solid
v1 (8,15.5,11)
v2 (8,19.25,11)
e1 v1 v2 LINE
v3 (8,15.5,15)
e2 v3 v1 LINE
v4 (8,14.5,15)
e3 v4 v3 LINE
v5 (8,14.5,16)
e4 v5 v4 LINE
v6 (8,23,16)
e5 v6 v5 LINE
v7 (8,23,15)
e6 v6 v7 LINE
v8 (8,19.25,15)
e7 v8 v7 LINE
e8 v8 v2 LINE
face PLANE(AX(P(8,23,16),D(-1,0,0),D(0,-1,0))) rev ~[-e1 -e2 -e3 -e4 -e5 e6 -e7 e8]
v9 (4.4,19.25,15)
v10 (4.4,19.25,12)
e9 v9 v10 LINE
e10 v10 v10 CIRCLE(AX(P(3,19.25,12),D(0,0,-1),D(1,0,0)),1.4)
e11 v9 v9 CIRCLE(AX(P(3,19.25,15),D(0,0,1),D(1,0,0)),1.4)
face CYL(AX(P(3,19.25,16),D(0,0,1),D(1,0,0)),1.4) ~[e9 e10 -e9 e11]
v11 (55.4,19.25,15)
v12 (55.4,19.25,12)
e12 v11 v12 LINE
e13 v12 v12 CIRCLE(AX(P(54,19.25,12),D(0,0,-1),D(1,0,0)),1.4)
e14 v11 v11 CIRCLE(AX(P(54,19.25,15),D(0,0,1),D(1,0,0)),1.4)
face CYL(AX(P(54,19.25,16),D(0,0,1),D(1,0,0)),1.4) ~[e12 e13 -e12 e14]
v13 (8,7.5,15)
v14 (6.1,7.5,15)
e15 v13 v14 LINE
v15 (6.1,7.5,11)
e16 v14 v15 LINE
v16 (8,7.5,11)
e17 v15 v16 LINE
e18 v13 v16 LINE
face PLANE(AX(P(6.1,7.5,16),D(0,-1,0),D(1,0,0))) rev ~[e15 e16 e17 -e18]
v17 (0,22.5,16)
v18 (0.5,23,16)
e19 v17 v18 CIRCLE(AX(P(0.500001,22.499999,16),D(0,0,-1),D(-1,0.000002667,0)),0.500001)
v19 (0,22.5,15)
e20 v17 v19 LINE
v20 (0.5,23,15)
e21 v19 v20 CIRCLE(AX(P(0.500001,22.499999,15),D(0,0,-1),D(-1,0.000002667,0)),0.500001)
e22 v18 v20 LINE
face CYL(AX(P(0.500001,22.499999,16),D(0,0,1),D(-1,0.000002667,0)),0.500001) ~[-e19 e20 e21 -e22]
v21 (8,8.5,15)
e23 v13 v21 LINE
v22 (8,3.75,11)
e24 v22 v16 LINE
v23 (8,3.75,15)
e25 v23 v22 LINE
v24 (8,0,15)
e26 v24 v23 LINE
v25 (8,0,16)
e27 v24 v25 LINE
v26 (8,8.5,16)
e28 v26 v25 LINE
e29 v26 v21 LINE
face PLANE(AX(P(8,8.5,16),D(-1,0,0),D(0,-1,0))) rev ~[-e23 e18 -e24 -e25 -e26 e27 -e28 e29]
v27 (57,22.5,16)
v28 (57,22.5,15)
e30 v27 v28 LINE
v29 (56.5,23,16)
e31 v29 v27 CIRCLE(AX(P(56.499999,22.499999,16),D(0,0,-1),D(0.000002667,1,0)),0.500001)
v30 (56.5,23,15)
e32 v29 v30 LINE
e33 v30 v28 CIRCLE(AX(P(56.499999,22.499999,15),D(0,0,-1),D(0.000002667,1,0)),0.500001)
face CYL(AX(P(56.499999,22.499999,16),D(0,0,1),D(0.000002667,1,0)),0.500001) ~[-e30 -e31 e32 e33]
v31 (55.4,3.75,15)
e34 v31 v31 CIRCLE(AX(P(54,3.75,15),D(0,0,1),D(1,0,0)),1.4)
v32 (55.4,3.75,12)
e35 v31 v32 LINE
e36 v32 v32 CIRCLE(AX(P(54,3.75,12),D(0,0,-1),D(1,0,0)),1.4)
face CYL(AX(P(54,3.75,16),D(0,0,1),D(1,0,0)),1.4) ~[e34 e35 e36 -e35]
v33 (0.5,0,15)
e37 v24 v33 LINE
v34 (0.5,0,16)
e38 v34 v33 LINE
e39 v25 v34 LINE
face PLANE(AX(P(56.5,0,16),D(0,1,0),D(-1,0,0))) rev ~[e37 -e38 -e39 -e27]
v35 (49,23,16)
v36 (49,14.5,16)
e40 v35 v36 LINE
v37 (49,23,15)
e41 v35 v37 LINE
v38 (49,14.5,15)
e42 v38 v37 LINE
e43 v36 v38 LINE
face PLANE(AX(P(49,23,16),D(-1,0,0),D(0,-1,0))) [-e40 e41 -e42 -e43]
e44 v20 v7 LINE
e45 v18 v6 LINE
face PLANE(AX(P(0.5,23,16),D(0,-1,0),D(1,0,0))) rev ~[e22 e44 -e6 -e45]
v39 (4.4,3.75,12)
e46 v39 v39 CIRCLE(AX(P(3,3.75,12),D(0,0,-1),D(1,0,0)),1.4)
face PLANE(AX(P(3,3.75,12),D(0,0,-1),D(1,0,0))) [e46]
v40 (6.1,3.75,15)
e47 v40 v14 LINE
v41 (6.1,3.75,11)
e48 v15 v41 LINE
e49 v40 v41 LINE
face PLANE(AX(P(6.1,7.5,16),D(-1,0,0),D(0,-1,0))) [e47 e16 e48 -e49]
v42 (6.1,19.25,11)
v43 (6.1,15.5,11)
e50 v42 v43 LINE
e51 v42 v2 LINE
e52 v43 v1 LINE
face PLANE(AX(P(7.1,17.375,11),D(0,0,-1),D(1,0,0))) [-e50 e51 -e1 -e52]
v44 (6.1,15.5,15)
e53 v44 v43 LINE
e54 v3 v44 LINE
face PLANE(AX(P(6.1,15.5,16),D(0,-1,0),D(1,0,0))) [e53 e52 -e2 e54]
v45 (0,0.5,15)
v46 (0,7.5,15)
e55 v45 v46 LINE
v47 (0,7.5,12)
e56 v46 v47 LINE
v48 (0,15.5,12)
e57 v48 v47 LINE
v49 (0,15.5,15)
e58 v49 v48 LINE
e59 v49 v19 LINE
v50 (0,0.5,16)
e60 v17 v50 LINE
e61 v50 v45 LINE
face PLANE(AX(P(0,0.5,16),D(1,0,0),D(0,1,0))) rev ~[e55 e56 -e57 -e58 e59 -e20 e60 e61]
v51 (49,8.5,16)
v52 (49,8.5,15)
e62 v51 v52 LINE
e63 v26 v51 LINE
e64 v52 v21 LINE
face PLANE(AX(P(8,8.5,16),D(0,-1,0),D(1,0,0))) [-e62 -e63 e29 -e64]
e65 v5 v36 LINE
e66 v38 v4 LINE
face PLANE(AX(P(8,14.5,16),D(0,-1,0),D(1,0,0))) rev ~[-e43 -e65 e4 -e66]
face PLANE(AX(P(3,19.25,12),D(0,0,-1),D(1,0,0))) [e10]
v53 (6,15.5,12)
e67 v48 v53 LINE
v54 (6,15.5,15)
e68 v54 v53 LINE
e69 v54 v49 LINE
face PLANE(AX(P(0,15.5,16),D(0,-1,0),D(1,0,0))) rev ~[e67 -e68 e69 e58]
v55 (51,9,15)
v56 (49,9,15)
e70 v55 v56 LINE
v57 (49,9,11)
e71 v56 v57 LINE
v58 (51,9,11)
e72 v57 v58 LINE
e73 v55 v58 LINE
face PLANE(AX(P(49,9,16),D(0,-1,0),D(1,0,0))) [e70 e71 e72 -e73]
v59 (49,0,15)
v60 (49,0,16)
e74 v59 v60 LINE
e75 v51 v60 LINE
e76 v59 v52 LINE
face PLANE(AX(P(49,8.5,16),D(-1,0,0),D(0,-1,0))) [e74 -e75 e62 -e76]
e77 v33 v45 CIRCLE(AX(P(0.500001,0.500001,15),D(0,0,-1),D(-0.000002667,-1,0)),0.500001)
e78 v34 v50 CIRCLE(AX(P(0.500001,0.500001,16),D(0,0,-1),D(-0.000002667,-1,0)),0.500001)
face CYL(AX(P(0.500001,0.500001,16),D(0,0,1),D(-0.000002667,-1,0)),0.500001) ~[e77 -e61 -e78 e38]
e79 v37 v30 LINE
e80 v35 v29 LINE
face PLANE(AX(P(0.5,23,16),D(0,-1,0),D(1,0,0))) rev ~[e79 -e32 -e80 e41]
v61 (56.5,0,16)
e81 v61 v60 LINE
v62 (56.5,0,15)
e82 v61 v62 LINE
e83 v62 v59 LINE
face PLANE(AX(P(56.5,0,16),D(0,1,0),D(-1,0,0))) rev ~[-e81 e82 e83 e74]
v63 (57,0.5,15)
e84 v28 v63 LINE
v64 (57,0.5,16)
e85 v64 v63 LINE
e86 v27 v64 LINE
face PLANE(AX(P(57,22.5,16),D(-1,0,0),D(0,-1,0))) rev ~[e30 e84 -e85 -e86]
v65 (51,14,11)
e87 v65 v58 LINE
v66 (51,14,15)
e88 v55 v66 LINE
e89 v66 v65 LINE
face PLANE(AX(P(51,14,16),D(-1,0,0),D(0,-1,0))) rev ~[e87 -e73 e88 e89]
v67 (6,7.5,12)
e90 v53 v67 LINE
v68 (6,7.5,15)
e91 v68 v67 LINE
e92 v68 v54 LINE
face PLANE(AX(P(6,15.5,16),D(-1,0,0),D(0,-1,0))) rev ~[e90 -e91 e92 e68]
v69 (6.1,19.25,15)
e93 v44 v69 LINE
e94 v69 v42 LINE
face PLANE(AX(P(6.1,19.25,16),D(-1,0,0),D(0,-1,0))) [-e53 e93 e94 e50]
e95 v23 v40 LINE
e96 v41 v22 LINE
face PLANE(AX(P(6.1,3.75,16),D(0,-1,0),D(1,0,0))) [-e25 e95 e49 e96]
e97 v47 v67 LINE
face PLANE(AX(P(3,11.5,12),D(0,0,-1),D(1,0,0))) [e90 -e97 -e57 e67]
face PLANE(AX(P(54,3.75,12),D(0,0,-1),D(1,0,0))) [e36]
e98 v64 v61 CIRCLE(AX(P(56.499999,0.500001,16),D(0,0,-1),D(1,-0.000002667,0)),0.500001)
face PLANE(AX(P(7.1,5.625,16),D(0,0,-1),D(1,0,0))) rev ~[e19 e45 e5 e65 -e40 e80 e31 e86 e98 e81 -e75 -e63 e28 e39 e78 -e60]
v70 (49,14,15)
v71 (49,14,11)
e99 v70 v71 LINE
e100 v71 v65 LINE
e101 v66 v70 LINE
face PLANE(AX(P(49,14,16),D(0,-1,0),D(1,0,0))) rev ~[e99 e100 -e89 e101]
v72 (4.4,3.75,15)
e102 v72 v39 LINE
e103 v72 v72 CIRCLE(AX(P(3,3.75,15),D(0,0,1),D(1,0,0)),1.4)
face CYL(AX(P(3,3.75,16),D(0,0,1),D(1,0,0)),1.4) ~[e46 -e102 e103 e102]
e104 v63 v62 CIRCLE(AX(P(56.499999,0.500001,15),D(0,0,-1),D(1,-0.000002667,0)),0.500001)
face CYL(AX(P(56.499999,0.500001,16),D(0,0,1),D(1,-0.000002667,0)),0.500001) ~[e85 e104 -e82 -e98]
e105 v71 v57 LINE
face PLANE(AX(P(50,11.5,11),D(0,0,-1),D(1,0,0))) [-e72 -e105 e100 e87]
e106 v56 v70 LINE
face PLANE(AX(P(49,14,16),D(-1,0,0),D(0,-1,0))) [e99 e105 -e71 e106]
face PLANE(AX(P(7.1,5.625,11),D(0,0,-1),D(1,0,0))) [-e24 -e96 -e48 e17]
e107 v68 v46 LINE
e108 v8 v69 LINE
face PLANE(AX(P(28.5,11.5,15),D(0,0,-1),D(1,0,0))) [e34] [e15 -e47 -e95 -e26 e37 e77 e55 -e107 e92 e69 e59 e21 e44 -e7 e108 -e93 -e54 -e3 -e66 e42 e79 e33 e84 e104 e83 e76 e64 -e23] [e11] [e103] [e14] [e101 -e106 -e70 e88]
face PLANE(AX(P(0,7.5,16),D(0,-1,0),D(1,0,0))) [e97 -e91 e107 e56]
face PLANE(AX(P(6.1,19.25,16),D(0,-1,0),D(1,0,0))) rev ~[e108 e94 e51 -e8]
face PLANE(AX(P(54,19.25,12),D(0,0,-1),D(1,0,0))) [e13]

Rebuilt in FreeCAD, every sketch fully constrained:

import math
import FreeCAD as App
import Part
import Sketcher

doc = App.newDocument("Part")
params = doc.addObject("Spreadsheet::Sheet", "Params")
for row, (alias, value) in enumerate([
    ("sketch1_radius", "0.500001 mm"),
    ("sketch1_width", "56 mm"),
    ("sketch1_height", "22 mm"),
    ("pad1_length", "1 mm"),
    ("sketch2_diameter", "2.8 mm"),
    ("sketch2_width", "6 mm"),
    ("sketch2_height", "8 mm"),
    ("pad2_length", "4 mm"),
    ("sketch3_width", "2 mm"),
    ("sketch3_height", "5 mm"),
    ("sketch3_height2", "3.75 mm"),
    ("pad3_length", "5 mm"),
    ("sketch4_width", "41 mm"),
    ("sketch4_height", "8.5 mm"),
], start=1):
    params.set(f"A{row}", alias)
    params.set(f"B{row}", "=" + value)
    params.setAlias(f"B{row}", alias)

body = doc.addObject("PartDesign::Body", "Body")

# Sketch on XY plane
sketch1 = doc.addObject("Sketcher::SketchObject", "Sketch")
body.addObject(sketch1)
sketch1.AttachmentSupport = (doc.XY_Plane, [""])
sketch1.MapMode = "FlatFace"
sketch1.addGeometry(Part.LineSegment(App.Vector(0.5, 0, 0), App.Vector(56.5, 0, 0)), False)
sketch1.addGeometry(Part.ArcOfCircle(Part.Circle(App.Vector(56.5, 0.5, 0), App.Vector(0, 0, 1), 0.5), math.radians(-90), math.radians(0)), False)
sketch1.addGeometry(Part.LineSegment(App.Vector(57, 0.5, 0), App.Vector(57, 22.5, 0)), False)
sketch1.addGeometry(Part.ArcOfCircle(Part.Circle(App.Vector(56.5, 22.5, 0), App.Vector(0, 0, 1), 0.5), math.radians(0), math.radians(90)), False)
sketch1.addGeometry(Part.LineSegment(App.Vector(56.5, 23, 0), App.Vector(0.5, 23, 0)), False)
sketch1.addGeometry(Part.ArcOfCircle(Part.Circle(App.Vector(0.5, 22.5, 0), App.Vector(0, 0, 1), 0.5), math.radians(90), math.radians(180)), False)
sketch1.addGeometry(Part.LineSegment(App.Vector(0, 22.5, 0), App.Vector(0, 0.5, 0)), False)
sketch1.addGeometry(Part.ArcOfCircle(Part.Circle(App.Vector(0.5, 0.5, 0), App.Vector(0, 0, 1), 0.5), math.radians(-180), math.radians(-90)), False)
sketch1.addConstraint(Sketcher.Constraint("Coincident", 0, 2, 1, 1))
sketch1.addConstraint(Sketcher.Constraint("Coincident", 1, 2, 2, 1))
sketch1.addConstraint(Sketcher.Constraint("Coincident", 2, 2, 3, 1))
sketch1.addConstraint(Sketcher.Constraint("Coincident", 3, 2, 4, 1))
sketch1.addConstraint(Sketcher.Constraint("Coincident", 4, 2, 5, 1))
sketch1.addConstraint(Sketcher.Constraint("Coincident", 5, 2, 6, 1))
sketch1.addConstraint(Sketcher.Constraint("Coincident", 6, 2, 7, 1))
sketch1.addConstraint(Sketcher.Constraint("Coincident", 7, 2, 0, 1))
sketch1.addConstraint(Sketcher.Constraint("Horizontal", 0))
sketch1.addConstraint(Sketcher.Constraint("Vertical", 2))
sketch1.addConstraint(Sketcher.Constraint("Horizontal", 4))
sketch1.addConstraint(Sketcher.Constraint("Vertical", 6))
sketch1.addConstraint(Sketcher.Constraint("Equal", 1, 3))
sketch1.addConstraint(Sketcher.Constraint("Equal", 3, 5))
sketch1.addConstraint(Sketcher.Constraint("Equal", 5, 7))
sketch1.addConstraint(Sketcher.Constraint("PointOnObject", 0, 2, -1))
sketch1.addConstraint(Sketcher.Constraint("PointOnObject", 5, 2, -2))
sketch1.addConstraint(Sketcher.Constraint("Horizontal", 7, 3, 1, 2))
sketch1.addConstraint(Sketcher.Constraint("Horizontal", 5, 3, 2, 2))
sketch1.addConstraint(Sketcher.Constraint("Horizontal", 2, 2, 5, 2))
sketch1.addConstraint(Sketcher.Constraint("Horizontal", 1, 2, 6, 2))
sketch1.addConstraint(Sketcher.Constraint("Vertical", 3, 3, 0, 2))
sketch1.addConstraint(Sketcher.Constraint("Vertical", 0, 2, 3, 2))
sketch1.addConstraint(Sketcher.Constraint("Vertical", 7, 3, 4, 2))
sketch1.addConstraint(Sketcher.Constraint("Vertical", 4, 2, 7, 2))
sketch1.addConstraint(Sketcher.Constraint("Radius", 1, 0.500001))
sketch1.addConstraint(Sketcher.Constraint("DistanceX", 0, 1, 0, 2, 56.0))
sketch1.addConstraint(Sketcher.Constraint("DistanceY", 2, 1, 2, 2, 22.0))
sketch1.setExpression("Constraints[25]", "Params.sketch1_radius")
sketch1.setExpression("Constraints[26]", "Params.sketch1_width")
sketch1.setExpression("Constraints[27]", "Params.sketch1_height")
pad1 = doc.addObject("PartDesign::Pad", "Pad")
body.addObject(pad1)
pad1.Profile = sketch1
pad1.setExpression("Length", "Params.pad1_length")

# Sketch on XY plane
sketch2 = doc.addObject("Sketcher::SketchObject", "Sketch001")
body.addObject(sketch2)
sketch2.AttachmentSupport = (doc.XY_Plane, [""])
sketch2.MapMode = "FlatFace"
sketch2.addGeometry(Part.Circle(App.Vector(3, 19.2, 0), App.Vector(0, 0, 1), 1.4), False)
sketch2.addGeometry(Part.Circle(App.Vector(3, 3.8, 0), App.Vector(0, 0, 1), 1.4), False)
sketch2.addGeometry(Part.Circle(App.Vector(54, 19.2, 0), App.Vector(0, 0, 1), 1.4), False)
sketch2.addGeometry(Part.Circle(App.Vector(54, 3.8, 0), App.Vector(0, 0, 1), 1.4), False)
sketch2.addGeometry(Part.LineSegment(App.Vector(0, 15.5, 0), App.Vector(0, 7.5, 0)), False)
sketch2.addGeometry(Part.LineSegment(App.Vector(0, 7.5, 0), App.Vector(6, 7.5, 0)), False)
sketch2.addGeometry(Part.LineSegment(App.Vector(6, 7.5, 0), App.Vector(6, 15.5, 0)), False)
sketch2.addGeometry(Part.LineSegment(App.Vector(6, 15.5, 0), App.Vector(0, 15.5, 0)), False)
sketch2.addConstraint(Sketcher.Constraint("Coincident", 4, 2, 5, 1))
sketch2.addConstraint(Sketcher.Constraint("Coincident", 5, 2, 6, 1))
sketch2.addConstraint(Sketcher.Constraint("Coincident", 6, 2, 7, 1))
sketch2.addConstraint(Sketcher.Constraint("Coincident", 7, 2, 4, 1))
sketch2.addConstraint(Sketcher.Constraint("Vertical", 4))
sketch2.addConstraint(Sketcher.Constraint("Horizontal", 5))
sketch2.addConstraint(Sketcher.Constraint("Vertical", 6))
sketch2.addConstraint(Sketcher.Constraint("Horizontal", 7))
sketch2.addConstraint(Sketcher.Constraint("Equal", 0, 1))
sketch2.addConstraint(Sketcher.Constraint("Equal", 1, 2))
sketch2.addConstraint(Sketcher.Constraint("Equal", 2, 3))
sketch2.addConstraint(Sketcher.Constraint("PointOnObject", 4, 2, -2))
sketch2.addConstraint(Sketcher.Constraint("Horizontal", 0, 3, 2, 3))
sketch2.addConstraint(Sketcher.Constraint("Horizontal", 1, 3, 3, 3))
sketch2.addConstraint(Sketcher.Constraint("Vertical", 0, 3, 1, 3))
sketch2.addConstraint(Sketcher.Constraint("Vertical", 2, 3, 3, 3))
sketch2.addConstraint(Sketcher.Constraint("Diameter", 0, 2.8))
sketch2.addConstraint(Sketcher.Constraint("DistanceX", 5, 1, 5, 2, 6.0))
sketch2.addConstraint(Sketcher.Constraint("DistanceY", 4, 2, 4, 1, 8.0))
sketch2.addConstraint(Sketcher.Constraint("DistanceX", -1, 1, 0, 3, 3.0))
sketch2.addConstraint(Sketcher.Constraint("DistanceX", -1, 1, 2, 3, 54.0))
sketch2.addConstraint(Sketcher.Constraint("DistanceY", -1, 1, 4, 2, 7.5))
sketch2.addConstraint(Sketcher.Constraint("DistanceY", 1, 3, 0, 3, 15.5))
sketch2.addConstraint(Sketcher.Constraint("DistanceY", -1, 1, 0, 3, 19.25))
sketch2.setExpression("Constraints[16]", "Params.sketch2_diameter")
sketch2.setExpression("Constraints[17]", "Params.sketch2_width")
sketch2.setExpression("Constraints[18]", "Params.sketch2_height")
pad2 = doc.addObject("PartDesign::Pad", "Pad001")
body.addObject(pad2)
pad2.Profile = sketch2
pad2.setExpression("Length", "Params.pad2_length")

# Sketch on XY plane
sketch3 = doc.addObject("Sketcher::SketchObject", "Sketch002")
body.addObject(sketch3)
sketch3.AttachmentSupport = (doc.XY_Plane, [""])
sketch3.MapMode = "FlatFace"
sketch3.addGeometry(Part.LineSegment(App.Vector(6.1, 19.2, 0), App.Vector(6.1, 15.5, 0)), False)
sketch3.addGeometry(Part.LineSegment(App.Vector(6.1, 15.5, 0), App.Vector(8.1, 15.5, 0)), False)
sketch3.addGeometry(Part.LineSegment(App.Vector(8.1, 15.5, 0), App.Vector(8.1, 19.2, 0)), False)
sketch3.addGeometry(Part.LineSegment(App.Vector(8.1, 19.2, 0), App.Vector(6.1, 19.2, 0)), False)
sketch3.addGeometry(Part.LineSegment(App.Vector(6.1, 7.5, 0), App.Vector(6.1, 3.8, 0)), False)
sketch3.addGeometry(Part.LineSegment(App.Vector(6.1, 3.8, 0), App.Vector(8.1, 3.8, 0)), False)
sketch3.addGeometry(Part.LineSegment(App.Vector(8.1, 3.8, 0), App.Vector(8.1, 7.5, 0)), False)
sketch3.addGeometry(Part.LineSegment(App.Vector(8.1, 7.5, 0), App.Vector(6.1, 7.5, 0)), False)
sketch3.addGeometry(Part.LineSegment(App.Vector(49, 14, 0), App.Vector(49, 9, 0)), False)
sketch3.addGeometry(Part.LineSegment(App.Vector(49, 9, 0), App.Vector(51, 9, 0)), False)
sketch3.addGeometry(Part.LineSegment(App.Vector(51, 9, 0), App.Vector(51, 14, 0)), False)
sketch3.addGeometry(Part.LineSegment(App.Vector(51, 14, 0), App.Vector(49, 14, 0)), False)
sketch3.addConstraint(Sketcher.Constraint("Coincident", 0, 2, 1, 1))
sketch3.addConstraint(Sketcher.Constraint("Coincident", 1, 2, 2, 1))
sketch3.addConstraint(Sketcher.Constraint("Coincident", 2, 2, 3, 1))
sketch3.addConstraint(Sketcher.Constraint("Coincident", 3, 2, 0, 1))
sketch3.addConstraint(Sketcher.Constraint("Coincident", 4, 2, 5, 1))
sketch3.addConstraint(Sketcher.Constraint("Coincident", 5, 2, 6, 1))
sketch3.addConstraint(Sketcher.Constraint("Coincident", 6, 2, 7, 1))
sketch3.addConstraint(Sketcher.Constraint("Coincident", 7, 2, 4, 1))
sketch3.addConstraint(Sketcher.Constraint("Coincident", 8, 2, 9, 1))
sketch3.addConstraint(Sketcher.Constraint("Coincident", 9, 2, 10, 1))
sketch3.addConstraint(Sketcher.Constraint("Coincident", 10, 2, 11, 1))
sketch3.addConstraint(Sketcher.Constraint("Coincident", 11, 2, 8, 1))
sketch3.addConstraint(Sketcher.Constraint("Vertical", 0))
sketch3.addConstraint(Sketcher.Constraint("Horizontal", 1))
sketch3.addConstraint(Sketcher.Constraint("Vertical", 2))
sketch3.addConstraint(Sketcher.Constraint("Horizontal", 3))
sketch3.addConstraint(Sketcher.Constraint("Vertical", 4))
sketch3.addConstraint(Sketcher.Constraint("Horizontal", 5))
sketch3.addConstraint(Sketcher.Constraint("Vertical", 6))
sketch3.addConstraint(Sketcher.Constraint("Horizontal", 7))
sketch3.addConstraint(Sketcher.Constraint("Vertical", 8))
sketch3.addConstraint(Sketcher.Constraint("Horizontal", 9))
sketch3.addConstraint(Sketcher.Constraint("Vertical", 10))
sketch3.addConstraint(Sketcher.Constraint("Horizontal", 11))
sketch3.addConstraint(Sketcher.Constraint("Vertical", 3, 2, 4, 2))
sketch3.addConstraint(Sketcher.Constraint("Vertical", 2, 2, 5, 2))
sketch3.addConstraint(Sketcher.Constraint("Equal", 7, 9))
sketch3.addConstraint(Sketcher.Constraint("Equal", 2, 4))
sketch3.addConstraint(Sketcher.Constraint("DistanceX", 1, 1, 1, 2, 2.0))
sketch3.addConstraint(Sketcher.Constraint("DistanceY", 8, 2, 8, 1, 5.0))
sketch3.addConstraint(Sketcher.Constraint("DistanceX", -1, 1, 8, 2, 49.0))
sketch3.addConstraint(Sketcher.Constraint("DistanceY", -1, 1, 8, 2, 9.0))
sketch3.addConstraint(Sketcher.Constraint("DistanceY", 6, 2, 1, 2, 8.0))
sketch3.addConstraint(Sketcher.Constraint("DistanceY", 0, 2, 0, 1, 3.75))
sketch3.addConstraint(Sketcher.Constraint("DistanceX", -1, 1, 0, 2, 6.1))
sketch3.addConstraint(Sketcher.Constraint("DistanceY", -1, 1, 0, 2, 15.5))
sketch3.setExpression("Constraints[28]", "Params.sketch3_width")
sketch3.setExpression("Constraints[29]", "Params.sketch3_height")
sketch3.setExpression("Constraints[33]", "Params.sketch3_height2")
pad3 = doc.addObject("PartDesign::Pad", "Pad002")
body.addObject(pad3)
pad3.Profile = sketch3
pad3.setExpression("Length", "Params.pad3_length")

# Sketch on XY plane
sketch4 = doc.addObject("Sketcher::SketchObject", "Sketch003")
body.addObject(sketch4)
sketch4.AttachmentSupport = (doc.XY_Plane, [""])
sketch4.MapMode = "FlatFace"
sketch4.addGeometry(Part.LineSegment(App.Vector(8, 26, 0), App.Vector(8, 14, 0)), False)
sketch4.addGeometry(Part.LineSegment(App.Vector(8, 14, 0), App.Vector(49, 14, 0)), False)
sketch4.addGeometry(Part.LineSegment(App.Vector(49, 14, 0), App.Vector(49, 26, 0)), False)
sketch4.addGeometry(Part.LineSegment(App.Vector(49, 26, 0), App.Vector(8, 26, 0)), False)
sketch4.addGeometry(Part.LineSegment(App.Vector(8, 8, 0), App.Vector(8, 0, 0)), False)
sketch4.addGeometry(Part.LineSegment(App.Vector(8, 0, 0), App.Vector(49, 0, 0)), False)
sketch4.addGeometry(Part.LineSegment(App.Vector(49, 0, 0), App.Vector(49, 8, 0)), False)
sketch4.addGeometry(Part.LineSegment(App.Vector(49, 8, 0), App.Vector(8, 8, 0)), False)
sketch4.addConstraint(Sketcher.Constraint("Coincident", 0, 2, 1, 1))
sketch4.addConstraint(Sketcher.Constraint("Coincident", 1, 2, 2, 1))
sketch4.addConstraint(Sketcher.Constraint("Coincident", 2, 2, 3, 1))
sketch4.addConstraint(Sketcher.Constraint("Coincident", 3, 2, 0, 1))
sketch4.addConstraint(Sketcher.Constraint("Coincident", 4, 2, 5, 1))
sketch4.addConstraint(Sketcher.Constraint("Coincident", 5, 2, 6, 1))
sketch4.addConstraint(Sketcher.Constraint("Coincident", 6, 2, 7, 1))
sketch4.addConstraint(Sketcher.Constraint("Coincident", 7, 2, 4, 1))
sketch4.addConstraint(Sketcher.Constraint("Vertical", 0))
sketch4.addConstraint(Sketcher.Constraint("Horizontal", 1))
sketch4.addConstraint(Sketcher.Constraint("Vertical", 2))
sketch4.addConstraint(Sketcher.Constraint("Horizontal", 3))
sketch4.addConstraint(Sketcher.Constraint("Vertical", 4))
sketch4.addConstraint(Sketcher.Constraint("Horizontal", 5))
sketch4.addConstraint(Sketcher.Constraint("Vertical", 6))
sketch4.addConstraint(Sketcher.Constraint("Horizontal", 7))
sketch4.addConstraint(Sketcher.Constraint("PointOnObject", 4, 2, -1))
sketch4.addConstraint(Sketcher.Constraint("Vertical", 3, 2, 4, 2))
sketch4.addConstraint(Sketcher.Constraint("Vertical", 2, 2, 5, 2))
sketch4.addConstraint(Sketcher.Constraint("DistanceX", 1, 1, 1, 2, 41.0))
sketch4.addConstraint(Sketcher.Constraint("DistanceY", 4, 2, 4, 1, 8.5))
sketch4.addConstraint(Sketcher.Constraint("DistanceX", -1, 1, 0, 2, 8.0))
sketch4.addConstraint(Sketcher.Constraint("DistanceY", 6, 2, 1, 2, 6.0))
sketch4.addConstraint(Sketcher.Constraint("DistanceY", 0, 2, 0, 1, 11.648772))
sketch4.setExpression("Constraints[19]", "Params.sketch4_width")
sketch4.setExpression("Constraints[20]", "Params.sketch4_height")
pocket1 = doc.addObject("PartDesign::Pocket", "Pocket")
body.addObject(pocket1)
pocket1.Profile = sketch4
pocket1.Type = "ThroughAll"
pocket1.Reversed = True
body2 = doc.addObject("PartDesign::Body", "Body001")
doc.recompute()

body.Placement = App.Placement(App.Vector(0, 23, 16), App.Rotation(App.Vector(-1, 0, 0), 180))
boolean = doc.addObject("PartDesign::Boolean", "Boolean")
body2.addObject(boolean)
boolean.Type = "Fuse"
boolean.addObjects([body])

doc.recompute()
